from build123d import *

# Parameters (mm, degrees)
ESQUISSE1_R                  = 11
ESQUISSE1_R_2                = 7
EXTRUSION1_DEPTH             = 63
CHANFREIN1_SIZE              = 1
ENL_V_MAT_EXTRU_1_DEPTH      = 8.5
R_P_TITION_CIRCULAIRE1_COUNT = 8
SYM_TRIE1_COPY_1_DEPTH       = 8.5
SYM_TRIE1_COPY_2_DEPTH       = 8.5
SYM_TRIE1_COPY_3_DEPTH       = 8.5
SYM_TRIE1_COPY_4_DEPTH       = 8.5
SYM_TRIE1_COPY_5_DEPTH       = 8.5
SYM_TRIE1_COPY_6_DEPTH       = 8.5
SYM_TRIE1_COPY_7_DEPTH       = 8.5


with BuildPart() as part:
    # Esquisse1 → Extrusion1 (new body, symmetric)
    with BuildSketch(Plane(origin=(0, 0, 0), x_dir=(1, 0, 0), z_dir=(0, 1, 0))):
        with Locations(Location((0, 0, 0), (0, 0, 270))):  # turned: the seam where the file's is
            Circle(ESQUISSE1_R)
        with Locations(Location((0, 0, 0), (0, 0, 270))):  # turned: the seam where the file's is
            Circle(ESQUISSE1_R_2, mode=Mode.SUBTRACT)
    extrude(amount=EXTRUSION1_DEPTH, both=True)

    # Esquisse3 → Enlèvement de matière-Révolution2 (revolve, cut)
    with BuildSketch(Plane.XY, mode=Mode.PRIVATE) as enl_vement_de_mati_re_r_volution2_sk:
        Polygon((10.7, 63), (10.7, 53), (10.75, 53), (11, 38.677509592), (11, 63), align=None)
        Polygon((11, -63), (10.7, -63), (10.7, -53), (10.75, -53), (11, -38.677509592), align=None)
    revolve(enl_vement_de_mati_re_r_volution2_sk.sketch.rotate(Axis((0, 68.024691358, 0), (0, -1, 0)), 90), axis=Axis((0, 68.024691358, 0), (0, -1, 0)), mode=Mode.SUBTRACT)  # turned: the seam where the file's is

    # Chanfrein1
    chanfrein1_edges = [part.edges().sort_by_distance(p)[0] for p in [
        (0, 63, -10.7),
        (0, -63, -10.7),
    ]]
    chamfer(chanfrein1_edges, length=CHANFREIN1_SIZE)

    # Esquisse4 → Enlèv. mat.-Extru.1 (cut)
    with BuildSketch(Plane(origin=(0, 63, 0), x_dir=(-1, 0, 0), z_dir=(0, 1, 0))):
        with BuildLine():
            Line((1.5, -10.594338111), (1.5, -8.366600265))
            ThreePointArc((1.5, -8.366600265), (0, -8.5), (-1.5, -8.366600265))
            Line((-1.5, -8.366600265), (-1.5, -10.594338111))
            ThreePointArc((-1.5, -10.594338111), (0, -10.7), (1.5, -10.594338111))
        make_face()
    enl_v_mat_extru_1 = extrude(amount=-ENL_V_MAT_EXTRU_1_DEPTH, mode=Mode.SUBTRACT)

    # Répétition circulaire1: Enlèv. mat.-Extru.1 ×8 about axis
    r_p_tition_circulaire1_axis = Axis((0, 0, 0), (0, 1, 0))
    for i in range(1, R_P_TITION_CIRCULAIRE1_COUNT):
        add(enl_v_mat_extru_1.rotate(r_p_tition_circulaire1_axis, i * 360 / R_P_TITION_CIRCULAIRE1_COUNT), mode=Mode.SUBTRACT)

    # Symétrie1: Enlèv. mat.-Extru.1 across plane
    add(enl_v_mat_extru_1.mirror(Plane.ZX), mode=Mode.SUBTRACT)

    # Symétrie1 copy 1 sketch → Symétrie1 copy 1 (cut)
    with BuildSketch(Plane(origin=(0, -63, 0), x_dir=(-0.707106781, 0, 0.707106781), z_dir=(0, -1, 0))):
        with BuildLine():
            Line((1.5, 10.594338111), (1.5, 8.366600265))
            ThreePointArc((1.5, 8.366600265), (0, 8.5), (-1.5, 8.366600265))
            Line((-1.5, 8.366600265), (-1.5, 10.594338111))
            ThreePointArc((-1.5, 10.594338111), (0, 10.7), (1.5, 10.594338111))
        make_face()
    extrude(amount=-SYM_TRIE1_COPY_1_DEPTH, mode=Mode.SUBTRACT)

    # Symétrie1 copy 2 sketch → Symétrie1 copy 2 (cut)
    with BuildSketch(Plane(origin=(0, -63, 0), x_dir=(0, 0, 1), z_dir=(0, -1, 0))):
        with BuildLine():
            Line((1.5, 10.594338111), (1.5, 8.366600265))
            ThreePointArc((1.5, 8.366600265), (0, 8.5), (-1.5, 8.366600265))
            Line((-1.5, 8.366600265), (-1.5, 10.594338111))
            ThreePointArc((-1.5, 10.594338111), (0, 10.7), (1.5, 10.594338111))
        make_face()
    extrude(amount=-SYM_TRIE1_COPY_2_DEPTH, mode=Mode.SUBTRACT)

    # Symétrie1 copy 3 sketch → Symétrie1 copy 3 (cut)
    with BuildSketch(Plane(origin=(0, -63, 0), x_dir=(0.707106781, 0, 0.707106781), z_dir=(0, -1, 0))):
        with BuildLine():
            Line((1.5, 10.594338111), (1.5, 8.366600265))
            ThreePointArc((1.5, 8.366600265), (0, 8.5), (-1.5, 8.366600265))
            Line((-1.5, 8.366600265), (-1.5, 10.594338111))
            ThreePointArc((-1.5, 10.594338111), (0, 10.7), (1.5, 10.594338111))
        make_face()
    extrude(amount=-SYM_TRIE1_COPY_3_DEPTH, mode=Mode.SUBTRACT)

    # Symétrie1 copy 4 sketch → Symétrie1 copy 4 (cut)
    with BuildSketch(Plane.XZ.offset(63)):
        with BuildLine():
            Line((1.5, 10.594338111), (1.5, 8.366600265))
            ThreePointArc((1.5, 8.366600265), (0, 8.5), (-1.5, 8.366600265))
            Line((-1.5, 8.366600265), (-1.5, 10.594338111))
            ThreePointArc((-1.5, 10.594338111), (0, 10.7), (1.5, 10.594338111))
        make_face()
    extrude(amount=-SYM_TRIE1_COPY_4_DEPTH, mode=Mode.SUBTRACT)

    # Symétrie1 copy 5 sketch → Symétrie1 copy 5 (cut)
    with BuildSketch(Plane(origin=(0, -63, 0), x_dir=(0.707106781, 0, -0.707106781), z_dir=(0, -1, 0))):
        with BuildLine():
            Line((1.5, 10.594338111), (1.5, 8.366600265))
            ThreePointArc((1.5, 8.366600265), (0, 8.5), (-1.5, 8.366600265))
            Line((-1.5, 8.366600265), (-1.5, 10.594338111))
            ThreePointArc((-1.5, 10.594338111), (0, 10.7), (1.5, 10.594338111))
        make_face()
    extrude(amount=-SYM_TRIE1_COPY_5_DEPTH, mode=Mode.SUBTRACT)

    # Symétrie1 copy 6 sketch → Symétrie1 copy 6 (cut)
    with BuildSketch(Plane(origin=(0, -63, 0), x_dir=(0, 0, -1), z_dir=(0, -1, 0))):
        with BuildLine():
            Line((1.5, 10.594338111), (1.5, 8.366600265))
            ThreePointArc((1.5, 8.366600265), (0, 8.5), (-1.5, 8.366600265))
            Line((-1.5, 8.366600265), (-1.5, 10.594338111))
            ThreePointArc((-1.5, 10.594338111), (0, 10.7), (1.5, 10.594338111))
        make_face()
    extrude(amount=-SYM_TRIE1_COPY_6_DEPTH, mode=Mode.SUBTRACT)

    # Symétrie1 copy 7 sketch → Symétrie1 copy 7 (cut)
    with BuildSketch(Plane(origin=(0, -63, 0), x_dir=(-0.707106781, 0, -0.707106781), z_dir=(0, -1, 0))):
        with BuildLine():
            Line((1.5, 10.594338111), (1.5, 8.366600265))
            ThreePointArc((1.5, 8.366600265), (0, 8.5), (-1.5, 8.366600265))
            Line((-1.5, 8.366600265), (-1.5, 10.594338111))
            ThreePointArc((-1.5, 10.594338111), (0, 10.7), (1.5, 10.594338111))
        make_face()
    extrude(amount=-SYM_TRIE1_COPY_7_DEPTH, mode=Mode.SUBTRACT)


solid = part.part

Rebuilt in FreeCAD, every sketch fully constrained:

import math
import FreeCAD as App
import Part
import Sketcher

V = App.Vector
Q = App.Units.Quantity


def edges_at(feature, points):
    """Names of the edges that pass closest to the given points."""
    edges = feature.Shape.Edges
    near = lambda p: min(range(len(edges)), key=lambda i: edges[i].distToShape(Part.Vertex(*p))[0])
    return sorted({f"Edge{near(p) + 1}" for p in points})


def add_polygon(sketch, points):
    """Adds a closed chain of lines whose ends are joined by coincident constraints."""
    first, n = sketch.GeometryCount, len(points)
    for a, b in zip(points, points[1:] + points[:1]):
        sketch.addGeometry(Part.LineSegment(App.Vector(*a, 0), App.Vector(*b, 0)), False)
    for i in range(n):
        sketch.addConstraint(Sketcher.Constraint("Coincident", first + i, 2, first + (i + 1) % n, 1))

doc = App.newDocument("Part")
body = doc.addObject("PartDesign::Body", "Body")

sketch1 = body.newObject("Sketcher::SketchObject", "Sketch")
sketch1.AttachmentSupport = (doc.getObject("XZ_Plane"), [""])
sketch1.MapMode = "FlatFace"
sketch1.addGeometry(Part.Circle(V(0, 0, 0), V(0, 0, 1), 11), False)
sketch1.addGeometry(Part.Circle(V(0, 0, 0), V(0, 0, 1), 7), False)
sketch1.addConstraint(Sketcher.Constraint("Coincident", 0, 3, -1, 1))
sketch1.addConstraint(Sketcher.Constraint("Coincident", 1, 3, -1, 1))
sketch1.addConstraint(Sketcher.Constraint("Diameter", 0, 22.0))
sketch1.addConstraint(Sketcher.Constraint("Diameter", 1, 14.0))
pad1 = body.newObject("PartDesign::Pad", "Pad")
pad1.Profile = sketch1
pad1.Length = 126
pad1.Midplane = True

sketch2 = body.newObject("Sketcher::SketchObject", "Sketch001")
sketch2.AttachmentSupport = (doc.getObject("XY_Plane"), [""])
sketch2.MapMode = "FlatFace"
add_polygon(sketch2, [(10.7, 63), (10.7, 53), (10.75, 53), (11, 38.68), (11, 63)])
add_polygon(sketch2, [(10.7, -63), (11, -63), (11, -38.68), (10.75, -53), (10.7, -53)])
sketch2.addConstraint(Sketcher.Constraint("Vertical", 0))
sketch2.addConstraint(Sketcher.Constraint("Horizontal", 1))
sketch2.addConstraint(Sketcher.Constraint("Vertical", 3))
sketch2.addConstraint(Sketcher.Constraint("Horizontal", 4))
sketch2.addConstraint(Sketcher.Constraint("Horizontal", 5))
sketch2.addConstraint(Sketcher.Constraint("Vertical", 6))
sketch2.addConstraint(Sketcher.Constraint("Horizontal", 8))
sketch2.addConstraint(Sketcher.Constraint("Vertical", 9))
sketch2.addConstraint(Sketcher.Constraint("Symmetric", 3, 2, 5, 2, -1))
sketch2.addConstraint(Sketcher.Constraint("Symmetric", 1, 2, 7, 2, -1))
sketch2.addConstraint(Sketcher.Constraint("Vertical", 4, 2, 8, 2))
sketch2.addConstraint(Sketcher.Constraint("Equal", 3, 6))
sketch2.addConstraint(Sketcher.Constraint("DistanceY", 0, 2, 0, 1, 10.0))
sketch2.addConstraint(Sketcher.Constraint("Angle", 2, Q("-89 deg")))
sketch2.addConstraint(Sketcher.Constraint("DistanceX", 4, 2, 4, 1, 0.3))
sketch2.addConstraint(Sketcher.Constraint("DistanceY", -1, 1, 0, 2, 53.0))
sketch2.addConstraint(Sketcher.Constraint("DistanceX", -1, 1, 2, 2, 11.0))
sketch2.addConstraint(Sketcher.Constraint("DistanceX", 1, 1, 1, 2, 0.05))
groove = body.newObject("PartDesign::Groove", "Groove")
groove.Profile = sketch2
groove.ReferenceAxis = (sketch2, ["V_Axis"])
groove.Angle = 360
doc.recompute()

chamfer = body.newObject("PartDesign::Chamfer", "Chamfer")
chamfer.Base = (groove, edges_at(groove, [(0, 63, -10.7), (0, -63, -10.7)]))
chamfer.Size = 1

sketch3 = body.newObject("Sketcher::SketchObject", "Sketch002")
sketch3.AttachmentSupport = (doc.getObject("XZ_Plane"), [""])
sketch3.MapMode = "FlatFace"
sketch3.AttachmentOffset = App.Placement(V(0, 0, -63), App.Rotation())
sketch3.addGeometry(Part.LineSegment(V(-1.5, -10.6, 0), V(-1.5, -8.4, 0)), False)
sketch3.addGeometry(Part.ArcOfCircle(Part.Circle(V(0, 0, 0), V(0, 0, 1), 8.5), math.radians(-100), math.radians(-80)), False)
sketch3.addGeometry(Part.LineSegment(V(1.5, -8.4, 0), V(1.5, -10.6, 0)), False)
sketch3.addGeometry(Part.ArcOfCircle(Part.Circle(V(0, 0, 0), V(0, 0, 1), 10.7), math.radians(-98.06), math.radians(-81.94)), False)
sketch3.addConstraint(Sketcher.Constraint("Coincident", 0, 2, 1, 1))
sketch3.addConstraint(Sketcher.Constraint("Coincident", 1, 2, 2, 1))
sketch3.addConstraint(Sketcher.Constraint("Coincident", 2, 2, 3, 2))
sketch3.addConstraint(Sketcher.Constraint("Coincident", 3, 1, 0, 1))
sketch3.addConstraint(Sketcher.Constraint("Vertical", 0))
sketch3.addConstraint(Sketcher.Constraint("Vertical", 2))
sketch3.addConstraint(Sketcher.Constraint("Coincident", 1, 3, -1, 1))
sketch3.addConstraint(Sketcher.Constraint("Coincident", 3, 3, -1, 1))
sketch3.addConstraint(Sketcher.Constraint("Horizontal", 0, 2, 1, 2))
sketch3.addConstraint(Sketcher.Constraint("Radius", 1, 8.5))
sketch3.addConstraint(Sketcher.Constraint("Radius", 3, 10.7))
sketch3.addConstraint(Sketcher.Constraint("DistanceX", 0, 2, 1, 2, 3.0))
pocket1 = body.newObject("PartDesign::Pocket", "Pocket")
pocket1.Profile = sketch3
pocket1.Length = 8.5
pocket1.Reversed = True
doc.recompute()

polarpattern = body.newObject("PartDesign::PolarPattern", "PolarPattern")
polarpattern.Originals = [pocket1]
polarpattern.Axis = (doc.getObject("Y_Axis"), [""])
polarpattern.Angle = 360
polarpattern.Occurrences = 8
body.Tip = polarpattern
doc.recompute()

mirrored = body.newObject("PartDesign::Mirrored", "Mirrored")
mirrored.Originals = [pocket1]
mirrored.MirrorPlane = (doc.getObject("XZ_Plane"), [""])
body.Tip = mirrored

sketch4 = body.newObject("Sketcher::SketchObject", "Sketch003")
sketch4.AttachmentSupport = (doc.getObject("XZ_Plane"), [""])
sketch4.MapMode = "FlatFace"
sketch4.AttachmentOffset = App.Placement(V(0, 0, 63), App.Rotation())
sketch4.addGeometry(Part.LineSegment(V(-7, -4.9, 0), V(-8.6, -6.4, 0)), False)
sketch4.addGeometry(Part.ArcOfCircle(Part.Circle(V(0, 0, 0), V(0, 0, 1), 10.7), math.radians(-143.06), math.radians(-126.94)), False)
sketch4.addGeometry(Part.LineSegment(V(-6.4, -8.6, 0), V(-4.9, -7, 0)), False)
sketch4.addGeometry(Part.ArcOfCircle(Part.Circle(V(0, 0, 0), V(0, 0, 1), 8.5), math.radians(-145), math.radians(-125)), False)
sketch4.addConstraint(Sketcher.Constraint("Coincident", 0, 2, 1, 1))
sketch4.addConstraint(Sketcher.Constraint("Coincident", 1, 2, 2, 1))
sketch4.addConstraint(Sketcher.Constraint("Coincident", 2, 2, 3, 2))
sketch4.addConstraint(Sketcher.Constraint("Coincident", 3, 1, 0, 1))
sketch4.addConstraint(Sketcher.Constraint("Coincident", 1, 3, -1, 1))
sketch4.addConstraint(Sketcher.Constraint("Coincident", 3, 3, -1, 1))
sketch4.addConstraint(Sketcher.Constraint("Parallel", 0, 2))
sketch4.addConstraint(Sketcher.Constraint("Equal", 0, 2))
sketch4.addConstraint(Sketcher.Constraint("Radius", 1, 10.7))
sketch4.addConstraint(Sketcher.Constraint("Radius", 3, 8.5))
sketch4.addConstraint(Sketcher.Constraint("Angle", 0, Q("-135 deg")))
sketch4.addConstraint(Sketcher.Constraint("DistanceX", 0, 2, -1, 1, 8.551988))
pocket2 = body.newObject("PartDesign::Pocket", "Pocket001")
pocket2.Profile = sketch4
pocket2.Length = 8.5

sketch5 = body.newObject("Sketcher::SketchObject", "Sketch004")
sketch5.AttachmentSupport = (doc.getObject("XZ_Plane"), [""])
sketch5.MapMode = "FlatFace"
sketch5.AttachmentOffset = App.Placement(V(0, 0, 63), App.Rotation())
sketch5.addGeometry(Part.LineSegment(V(-8.4, 1.5, 0), V(-10.6, 1.5, 0)), False)
sketch5.addGeometry(Part.ArcOfCircle(Part.Circle(V(0, 0, 0), V(0, 0, 1), 10.7), math.radians(171.94), math.radians(188.06)), False)
sketch5.addGeometry(Part.LineSegment(V(-10.6, -1.5, 0), V(-8.4, -1.5, 0)), False)
sketch5.addGeometry(Part.ArcOfCircle(Part.Circle(V(0, 0, 0), V(0, 0, 1), 8.5), math.radians(170), math.radians(190)), False)
sketch5.addConstraint(Sketcher.Constraint("Coincident", 0, 2, 1, 1))
sketch5.addConstraint(Sketcher.Constraint("Coincident", 1, 2, 2, 1))
sketch5.addConstraint(Sketcher.Constraint("Coincident", 2, 2, 3, 2))
sketch5.addConstraint(Sketcher.Constraint("Coincident", 3, 1, 0, 1))
sketch5.addConstraint(Sketcher.Constraint("Horizontal", 0))
sketch5.addConstraint(Sketcher.Constraint("Horizontal", 2))
sketch5.addConstraint(Sketcher.Constraint("Coincident", 1, 3, -1, 1))
sketch5.addConstraint(Sketcher.Constraint("Coincident", 3, 3, -1, 1))
sketch5.addConstraint(Sketcher.Constraint("Vertical", 0, 2, 1, 2))
sketch5.addConstraint(Sketcher.Constraint("Radius", 1, 10.7))
sketch5.addConstraint(Sketcher.Constraint("Radius", 3, 8.5))
sketch5.addConstraint(Sketcher.Constraint("DistanceY", 1, 2, 0, 2, 3.0))
pocket3 = body.newObject("PartDesign::Pocket", "Pocket002")
pocket3.Profile = sketch5
pocket3.Length = 8.5

sketch6 = body.newObject("Sketcher::SketchObject", "Sketch005")
sketch6.AttachmentSupport = (doc.getObject("XZ_Plane"), [""])
sketch6.MapMode = "FlatFace"
sketch6.AttachmentOffset = App.Placement(V(0, 0, 63), App.Rotation())
sketch6.addGeometry(Part.LineSegment(V(-4.9, 7, 0), V(-6.4, 8.6, 0)), False)
sketch6.addGeometry(Part.ArcOfCircle(Part.Circle(V(0, 0, 0), V(0, 0, 1), 10.7), math.radians(126.94), math.radians(143.06)), False)
sketch6.addGeometry(Part.LineSegment(V(-8.6, 6.4, 0), V(-7, 4.9, 0)), False)
sketch6.addGeometry(Part.ArcOfCircle(Part.Circle(V(0, 0, 0), V(0, 0, 1), 8.5), math.radians(125), math.radians(145)), False)
sketch6.addConstraint(Sketcher.Constraint("Coincident", 0, 2, 1, 1))
sketch6.addConstraint(Sketcher.Constraint("Coincident", 1, 2, 2, 1))
sketch6.addConstraint(Sketcher.Constraint("Coincident", 2, 2, 3, 2))
sketch6.addConstraint(Sketcher.Constraint("Coincident", 3, 1, 0, 1))
sketch6.addConstraint(Sketcher.Constraint("Coincident", 1, 3, -1, 1))
sketch6.addConstraint(Sketcher.Constraint("Coincident", 3, 3, -1, 1))
sketch6.addConstraint(Sketcher.Constraint("Parallel", 0, 2))
sketch6.addConstraint(Sketcher.Constraint("Equal", 0, 2))
sketch6.addConstraint(Sketcher.Constraint("Radius", 1, 10.7))
sketch6.addConstraint(Sketcher.Constraint("Radius", 3, 8.5))
sketch6.addConstraint(Sketcher.Constraint("Angle", 0, Q("135 deg")))
sketch6.addConstraint(Sketcher.Constraint("DistanceX", 0, 2, -1, 1, 6.430668))
pocket4 = body.newObject("PartDesign::Pocket", "Pocket003")
pocket4.Profile = sketch6
pocket4.Length = 8.5

sketch7 = body.newObject("Sketcher::SketchObject", "Sketch006")
sketch7.AttachmentSupport = (doc.getObject("XZ_Plane"), [""])
sketch7.MapMode = "FlatFace"
sketch7.AttachmentOffset = App.Placement(V(0, 0, 63), App.Rotation())
sketch7.addGeometry(Part.LineSegment(V(1.5, 8.4, 0), V(1.5, 10.6, 0)), False)
sketch7.addGeometry(Part.ArcOfCircle(Part.Circle(V(0, 0, 0), V(0, 0, 1), 10.7), math.radians(81.94), math.radians(98.06)), False)
sketch7.addGeometry(Part.LineSegment(V(-1.5, 10.6, 0), V(-1.5, 8.4, 0)), False)
sketch7.addGeometry(Part.ArcOfCircle(Part.Circle(V(0, 0, 0), V(0, 0, 1), 8.5), math.radians(80), math.radians(100)), False)
sketch7.addConstraint(Sketcher.Constraint("Coincident", 0, 2, 1, 1))
sketch7.addConstraint(Sketcher.Constraint("Coincident", 1, 2, 2, 1))
sketch7.addConstraint(Sketcher.Constraint("Coincident", 2, 2, 3, 2))
sketch7.addConstraint(Sketcher.Constraint("Coincident", 3, 1, 0, 1))
sketch7.addConstraint(Sketcher.Constraint("Vertical", 0))
sketch7.addConstraint(Sketcher.Constraint("Vertical", 2))
sketch7.addConstraint(Sketcher.Constraint("Coincident", 1, 3, -1, 1))
sketch7.addConstraint(Sketcher.Constraint("Coincident", 3, 3, -1, 1))
sketch7.addConstraint(Sketcher.Constraint("Horizontal", 0, 2, 1, 2))
sketch7.addConstraint(Sketcher.Constraint("Radius", 1, 10.7))
sketch7.addConstraint(Sketcher.Constraint("Radius", 3, 8.5))
sketch7.addConstraint(Sketcher.Constraint("DistanceX", 1, 2, 0, 2, 3.0))
pocket5 = body.newObject("PartDesign::Pocket", "Pocket004")
pocket5.Profile = sketch7
pocket5.Length = 8.5

sketch8 = body.newObject("Sketcher::SketchObject", "Sketch007")
sketch8.AttachmentSupport = (doc.getObject("XZ_Plane"), [""])
sketch8.MapMode = "FlatFace"
sketch8.AttachmentOffset = App.Placement(V(0, 0, 63), App.Rotation())
sketch8.addGeometry(Part.LineSegment(V(7, 4.9, 0), V(8.6, 6.4, 0)), False)
sketch8.addGeometry(Part.ArcOfCircle(Part.Circle(V(0, 0, 0), V(0, 0, 1), 10.7), math.radians(36.94), math.radians(53.06)), False)
sketch8.addGeometry(Part.LineSegment(V(6.4, 8.6, 0), V(4.9, 7, 0)), False)
sketch8.addGeometry(Part.ArcOfCircle(Part.Circle(V(0, 0, 0), V(0, 0, 1), 8.5), math.radians(35), math.radians(55)), False)
sketch8.addConstraint(Sketcher.Constraint("Coincident", 0, 2, 1, 1))
sketch8.addConstraint(Sketcher.Constraint("Coincident", 1, 2, 2, 1))
sketch8.addConstraint(Sketcher.Constraint("Coincident", 2, 2, 3, 2))
sketch8.addConstraint(Sketcher.Constraint("Coincident", 3, 1, 0, 1))
sketch8.addConstraint(Sketcher.Constraint("Coincident", 1, 3, -1, 1))
sketch8.addConstraint(Sketcher.Constraint("Coincident", 3, 3, -1, 1))
sketch8.addConstraint(Sketcher.Constraint("Parallel", 0, 2))
sketch8.addConstraint(Sketcher.Constraint("Equal", 0, 2))
sketch8.addConstraint(Sketcher.Constraint("Radius", 1, 10.7))
sketch8.addConstraint(Sketcher.Constraint("Radius", 3, 8.5))
sketch8.addConstraint(Sketcher.Constraint("Angle", 0, Q("45 deg")))
sketch8.addConstraint(Sketcher.Constraint("DistanceX", -1, 1, 0, 2, 8.551988))
pocket6 = body.newObject("PartDesign::Pocket", "Pocket005")
pocket6.Profile = sketch8
pocket6.Length = 8.5

sketch9 = body.newObject("Sketcher::SketchObject", "Sketch008")
sketch9.AttachmentSupport = (doc.getObject("XZ_Plane"), [""])
sketch9.MapMode = "FlatFace"
sketch9.AttachmentOffset = App.Placement(V(0, 0, 63), App.Rotation())
sketch9.addGeometry(Part.LineSegment(V(8.4, -1.5, 0), V(10.6, -1.5, 0)), False)
sketch9.addGeometry(Part.ArcOfCircle(Part.Circle(V(0, 0, 0), V(0, 0, 1), 10.7), math.radians(-8.06), math.radians(8.06)), False)
sketch9.addGeometry(Part.LineSegment(V(10.6, 1.5, 0), V(8.4, 1.5, 0)), False)
sketch9.addGeometry(Part.ArcOfCircle(Part.Circle(V(0, 0, 0), V(0, 0, 1), 8.5), math.radians(-10), math.radians(10)), False)
sketch9.addConstraint(Sketcher.Constraint("Coincident", 0, 2, 1, 1))
sketch9.addConstraint(Sketcher.Constraint("Coincident", 1, 2, 2, 1))
sketch9.addConstraint(Sketcher.Constraint("Coincident", 2, 2, 3, 2))
sketch9.addConstraint(Sketcher.Constraint("Coincident", 3, 1, 0, 1))
sketch9.addConstraint(Sketcher.Constraint("Horizontal", 0))
sketch9.addConstraint(Sketcher.Constraint("Horizontal", 2))
sketch9.addConstraint(Sketcher.Constraint("Coincident", 1, 3, -1, 1))
sketch9.addConstraint(Sketcher.Constraint("Coincident", 3, 3, -1, 1))
sketch9.addConstraint(Sketcher.Constraint("Vertical", 0, 2, 1, 2))
sketch9.addConstraint(Sketcher.Constraint("Radius", 1, 10.7))
sketch9.addConstraint(Sketcher.Constraint("Radius", 3, 8.5))
sketch9.addConstraint(Sketcher.Constraint("DistanceY", 0, 2, 1, 2, 3.0))
pocket7 = body.newObject("PartDesign::Pocket", "Pocket006")
pocket7.Profile = sketch9
pocket7.Length = 8.5

sketch10 = body.newObject("Sketcher::SketchObject", "Sketch009")
sketch10.AttachmentSupport = (doc.getObject("XZ_Plane"), [""])
sketch10.MapMode = "FlatFace"
sketch10.AttachmentOffset = App.Placement(V(0, 0, 63), App.Rotation())
sketch10.addGeometry(Part.LineSegment(V(4.9, -7, 0), V(6.4, -8.6, 0)), False)
sketch10.addGeometry(Part.ArcOfCircle(Part.Circle(V(0, 0, 0), V(0, 0, 1), 10.7), math.radians(-53.06), math.radians(-36.94)), False)
sketch10.addGeometry(Part.LineSegment(V(8.6, -6.4, 0), V(7, -4.9, 0)), False)
sketch10.addGeometry(Part.ArcOfCircle(Part.Circle(V(0, 0, 0), V(0, 0, 1), 8.5), math.radians(-55), math.radians(-35)), False)
sketch10.addConstraint(Sketcher.Constraint("Coincident", 0, 2, 1, 1))
sketch10.addConstraint(Sketcher.Constraint("Coincident", 1, 2, 2, 1))
sketch10.addConstraint(Sketcher.Constraint("Coincident", 2, 2, 3, 2))
sketch10.addConstraint(Sketcher.Constraint("Coincident", 3, 1, 0, 1))
sketch10.addConstraint(Sketcher.Constraint("Coincident", 1, 3, -1, 1))
sketch10.addConstraint(Sketcher.Constraint("Coincident", 3, 3, -1, 1))
sketch10.addConstraint(Sketcher.Constraint("Parallel", 0, 2))
sketch10.addConstraint(Sketcher.Constraint("Equal", 0, 2))
sketch10.addConstraint(Sketcher.Constraint("Radius", 1, 10.7))
sketch10.addConstraint(Sketcher.Constraint("Radius", 3, 8.5))
sketch10.addConstraint(Sketcher.Constraint("Angle", 0, Q("-45 deg")))
sketch10.addConstraint(Sketcher.Constraint("DistanceX", -1, 1, 0, 2, 6.430668))
pocket8 = body.newObject("PartDesign::Pocket", "Pocket007")
pocket8.Profile = sketch10
pocket8.Length = 8.5

doc.recompute()
